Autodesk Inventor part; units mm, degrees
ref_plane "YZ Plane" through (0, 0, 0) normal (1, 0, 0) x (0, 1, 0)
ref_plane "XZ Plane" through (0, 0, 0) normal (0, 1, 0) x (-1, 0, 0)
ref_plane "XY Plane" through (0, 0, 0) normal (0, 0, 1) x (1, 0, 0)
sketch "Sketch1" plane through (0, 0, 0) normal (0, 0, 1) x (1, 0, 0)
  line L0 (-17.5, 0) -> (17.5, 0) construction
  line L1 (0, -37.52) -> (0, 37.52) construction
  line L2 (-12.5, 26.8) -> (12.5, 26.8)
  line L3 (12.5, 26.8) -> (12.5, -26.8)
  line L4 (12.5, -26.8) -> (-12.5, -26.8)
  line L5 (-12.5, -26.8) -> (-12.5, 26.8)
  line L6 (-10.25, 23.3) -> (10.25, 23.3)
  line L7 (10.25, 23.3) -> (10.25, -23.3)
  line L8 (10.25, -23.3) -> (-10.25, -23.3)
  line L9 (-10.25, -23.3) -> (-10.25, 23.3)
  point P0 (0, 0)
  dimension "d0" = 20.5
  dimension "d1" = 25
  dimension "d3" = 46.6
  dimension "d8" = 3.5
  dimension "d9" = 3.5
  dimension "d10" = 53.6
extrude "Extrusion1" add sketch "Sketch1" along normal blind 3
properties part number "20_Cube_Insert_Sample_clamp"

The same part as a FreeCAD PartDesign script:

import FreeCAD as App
import Part
import Sketcher

V = App.Vector
Q = App.Units.Quantity

doc = App.newDocument("Part")
body = doc.addObject("PartDesign::Body", "Body")

# Sketch on XY plane
sketch1 = doc.addObject("Sketcher::SketchObject", "Sketch")
body.addObject(sketch1)
sketch1.AttachmentSupport = (doc.XY_Plane, [""])
sketch1.MapMode = "FlatFace"
sketch1.addGeometry(Part.LineSegment(V(12, 27, 0), V(-12, 27, 0)), False)
sketch1.addGeometry(Part.LineSegment(V(-12, 27, 0), V(-12, -27, 0)), False)
sketch1.addGeometry(Part.LineSegment(V(-12, -27, 0), V(12, -27, 0)), False)
sketch1.addGeometry(Part.LineSegment(V(12, -27, 0), V(12, 27, 0)), False)
sketch1.addGeometry(Part.LineSegment(V(-10, -23, 0), V(-10, 23, 0)), False)
sketch1.addGeometry(Part.LineSegment(V(-10, 23, 0), V(10, 23, 0)), False)
sketch1.addGeometry(Part.LineSegment(V(10, 23, 0), V(10, -23, 0)), False)
sketch1.addGeometry(Part.LineSegment(V(10, -23, 0), V(-10, -23, 0)), False)
sketch1.addConstraint(Sketcher.Constraint("Coincident", 0, 2, 1, 1))
sketch1.addConstraint(Sketcher.Constraint("Coincident", 1, 2, 2, 1))
sketch1.addConstraint(Sketcher.Constraint("Coincident", 2, 2, 3, 1))
sketch1.addConstraint(Sketcher.Constraint("Coincident", 3, 2, 0, 1))
sketch1.addConstraint(Sketcher.Constraint("Coincident", 4, 2, 5, 1))
sketch1.addConstraint(Sketcher.Constraint("Coincident", 5, 2, 6, 1))
sketch1.addConstraint(Sketcher.Constraint("Coincident", 6, 2, 7, 1))
sketch1.addConstraint(Sketcher.Constraint("Coincident", 7, 2, 4, 1))
sketch1.addConstraint(Sketcher.Constraint("Horizontal", 0))
sketch1.addConstraint(Sketcher.Constraint("Vertical", 1))
sketch1.addConstraint(Sketcher.Constraint("Horizontal", 2))
sketch1.addConstraint(Sketcher.Constraint("Vertical", 3))
sketch1.addConstraint(Sketcher.Constraint("Vertical", 4))
sketch1.addConstraint(Sketcher.Constraint("Horizontal", 5))
sketch1.addConstraint(Sketcher.Constraint("Vertical", 6))
sketch1.addConstraint(Sketcher.Constraint("Horizontal", 7))
sketch1.addConstraint(Sketcher.Constraint("Symmetric", 0, 2, 2, 2, -1, 1))
sketch1.addConstraint(Sketcher.Constraint("Symmetric", 4, 2, 6, 2, -1, 1))
sketch1.addConstraint(Sketcher.Constraint("DistanceX", 0, 2, 0, 1, Q("25 mm")))
sketch1.addConstraint(Sketcher.Constraint("DistanceX", 5, 1, 5, 2, Q("20.5 mm")))
sketch1.addConstraint(Sketcher.Constraint("DistanceY", 1, 2, 1, 1, Q("53.6 mm")))
sketch1.addConstraint(Sketcher.Constraint("DistanceY", 4, 1, 4, 2, Q("46.6 mm")))
pad1 = doc.addObject("PartDesign::Pad", "Pad")
body.addObject(pad1)
pad1.Profile = sketch1
pad1.Length = 3

doc.recompute()
